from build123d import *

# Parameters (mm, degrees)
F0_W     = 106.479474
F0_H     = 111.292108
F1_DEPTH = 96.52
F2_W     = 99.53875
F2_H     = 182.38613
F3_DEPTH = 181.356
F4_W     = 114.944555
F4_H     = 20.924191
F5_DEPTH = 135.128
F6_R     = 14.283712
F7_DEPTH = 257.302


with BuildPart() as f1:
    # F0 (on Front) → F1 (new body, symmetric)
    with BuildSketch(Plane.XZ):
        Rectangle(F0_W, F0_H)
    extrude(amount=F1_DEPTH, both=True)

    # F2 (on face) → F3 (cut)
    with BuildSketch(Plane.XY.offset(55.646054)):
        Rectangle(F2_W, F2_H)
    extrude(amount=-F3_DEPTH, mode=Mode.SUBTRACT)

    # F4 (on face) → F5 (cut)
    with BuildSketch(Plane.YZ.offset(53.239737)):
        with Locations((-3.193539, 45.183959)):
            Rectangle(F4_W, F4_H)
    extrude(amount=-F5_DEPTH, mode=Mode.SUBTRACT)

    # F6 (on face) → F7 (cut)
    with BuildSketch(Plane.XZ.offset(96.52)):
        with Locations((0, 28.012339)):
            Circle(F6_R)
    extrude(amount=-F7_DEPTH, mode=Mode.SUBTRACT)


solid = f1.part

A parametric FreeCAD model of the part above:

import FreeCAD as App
import Part
import Sketcher
Q = App.Units.Quantity


def add_polygon(sketch, points):
    """Adds a closed chain of lines whose ends are joined by coincident constraints."""
    first, n = sketch.GeometryCount, len(points)
    for a, b in zip(points, points[1:] + points[:1]):
        sketch.addGeometry(Part.LineSegment(App.Vector(*a, 0), App.Vector(*b, 0)), False)
    for i in range(n):
        sketch.addConstraint(Sketcher.Constraint("Coincident", first + i, 2, first + (i + 1) % n, 1))

doc = App.newDocument("Part")
params = doc.addObject("Spreadsheet::Sheet", "Params")
for row, (alias, value) in enumerate([
    ("pad1_length", "7.6 in"),
    ("pocket1_length", "7.14 in"),
    ("pocket2_length", "5.32 in"),
    ("pocket3_length", "10.13 in"),
], start=1):
    params.set(f"A{row}", alias)
    params.set(f"B{row}", "=" + value)
    params.setAlias(f"B{row}", alias)

body = doc.addObject("PartDesign::Body", "Body")

# Sketch on XZ plane
sketch1 = body.newObject("Sketcher::SketchObject", "Sketch")
sketch1.AttachmentSupport = (doc.getObject("XZ_Plane"), [""])
sketch1.MapMode = "FlatFace"
add_polygon(sketch1, [(-53, 56), (-53, -56), (53, -56), (53, 56)])  # lines 0-3
sketch1.addConstraint(Sketcher.Constraint("Vertical", 0))
sketch1.addConstraint(Sketcher.Constraint("Horizontal", 1))
sketch1.addConstraint(Sketcher.Constraint("Vertical", 2))
sketch1.addConstraint(Sketcher.Constraint("Horizontal", 3))
sketch1.addConstraint(Sketcher.Constraint("Symmetric", 0, 2, 2, 2, -1, 1))
sketch1.addConstraint(Sketcher.Constraint("DistanceY", 0, 2, 0, 1, Q("111.292108 mm")))
sketch1.addConstraint(Sketcher.Constraint("DistanceX", 1, 1, 1, 2, Q("106.479474 mm")))
pad1 = body.newObject("PartDesign::Pad", "Pad")
pad1.Profile = sketch1
pad1.setExpression("Length", "Params.pad1_length")
pad1.Midplane = True

# Sketch on XY plane
sketch2 = body.newObject("Sketcher::SketchObject", "Sketch001")
sketch2.AttachmentSupport = (doc.getObject("XY_Plane"), [""])
sketch2.MapMode = "FlatFace"
sketch2.AttachmentOffset = App.Placement(App.Vector(0, 0, 55.646054), App.Rotation())
add_polygon(sketch2, [(-50, 91), (-50, -91), (50, -91), (50, 91)])  # lines 0-3
sketch2.addConstraint(Sketcher.Constraint("Vertical", 0))
sketch2.addConstraint(Sketcher.Constraint("Horizontal", 1))
sketch2.addConstraint(Sketcher.Constraint("Vertical", 2))
sketch2.addConstraint(Sketcher.Constraint("Horizontal", 3))
sketch2.addConstraint(Sketcher.Constraint("Symmetric", 0, 2, 2, 2, -1, 1))
sketch2.addConstraint(Sketcher.Constraint("DistanceX", 1, 1, 1, 2, Q("99.53875 mm")))
sketch2.addConstraint(Sketcher.Constraint("DistanceY", 0, 2, 0, 1, Q("182.38613 mm")))
pocket1 = body.newObject("PartDesign::Pocket", "Pocket")
pocket1.Profile = sketch2
pocket1.setExpression("Length", "Params.pocket1_length")

# Sketch on YZ plane
sketch3 = body.newObject("Sketcher::SketchObject", "Sketch002")
sketch3.AttachmentSupport = (doc.getObject("YZ_Plane"), [""])
sketch3.MapMode = "FlatFace"
sketch3.AttachmentOffset = App.Placement(App.Vector(0, 0, 53.239737), App.Rotation())
add_polygon(sketch3, [(-61, 56), (-61, 35), (54, 35), (54, 56)])  # lines 0-3
sketch3.addConstraint(Sketcher.Constraint("Vertical", 0))
sketch3.addConstraint(Sketcher.Constraint("Horizontal", 1))
sketch3.addConstraint(Sketcher.Constraint("Vertical", 2))
sketch3.addConstraint(Sketcher.Constraint("Horizontal", 3))
sketch3.addConstraint(Sketcher.Constraint("DistanceY", 0, 2, 0, 1, Q("20.924191 mm")))
sketch3.addConstraint(Sketcher.Constraint("DistanceX", 1, 1, 1, 2, Q("114.944555 mm")))
sketch3.addConstraint(Sketcher.Constraint("DistanceX", -1, 1, 1, 2, Q("54.278739 mm")))
sketch3.addConstraint(Sketcher.Constraint("DistanceY", -1, 1, 0, 2, Q("34.721863 mm")))
pocket2 = body.newObject("PartDesign::Pocket", "Pocket001")
pocket2.Profile = sketch3
pocket2.setExpression("Length", "Params.pocket2_length")

# Sketch on XZ plane
sketch4 = body.newObject("Sketcher::SketchObject", "Sketch003")
sketch4.AttachmentSupport = (doc.getObject("XZ_Plane"), [""])
sketch4.MapMode = "FlatFace"
sketch4.AttachmentOffset = App.Placement(App.Vector(0, 0, 3.8 * 25.4), App.Rotation())
sketch4.addGeometry(Part.Circle(App.Vector(0, 28, 0), App.Vector(0, 0, 1), 14), False)
sketch4.addConstraint(Sketcher.Constraint("PointOnObject", 0, 3, -2))
sketch4.addConstraint(Sketcher.Constraint("Diameter", 0, Q("28.567424 mm")))
sketch4.addConstraint(Sketcher.Constraint("DistanceY", -1, 1, 0, 3, Q("28.012339 mm")))
pocket3 = body.newObject("PartDesign::Pocket", "Pocket002")
pocket3.Profile = sketch4
pocket3.setExpression("Length", "Params.pocket3_length")

doc.recompute()
